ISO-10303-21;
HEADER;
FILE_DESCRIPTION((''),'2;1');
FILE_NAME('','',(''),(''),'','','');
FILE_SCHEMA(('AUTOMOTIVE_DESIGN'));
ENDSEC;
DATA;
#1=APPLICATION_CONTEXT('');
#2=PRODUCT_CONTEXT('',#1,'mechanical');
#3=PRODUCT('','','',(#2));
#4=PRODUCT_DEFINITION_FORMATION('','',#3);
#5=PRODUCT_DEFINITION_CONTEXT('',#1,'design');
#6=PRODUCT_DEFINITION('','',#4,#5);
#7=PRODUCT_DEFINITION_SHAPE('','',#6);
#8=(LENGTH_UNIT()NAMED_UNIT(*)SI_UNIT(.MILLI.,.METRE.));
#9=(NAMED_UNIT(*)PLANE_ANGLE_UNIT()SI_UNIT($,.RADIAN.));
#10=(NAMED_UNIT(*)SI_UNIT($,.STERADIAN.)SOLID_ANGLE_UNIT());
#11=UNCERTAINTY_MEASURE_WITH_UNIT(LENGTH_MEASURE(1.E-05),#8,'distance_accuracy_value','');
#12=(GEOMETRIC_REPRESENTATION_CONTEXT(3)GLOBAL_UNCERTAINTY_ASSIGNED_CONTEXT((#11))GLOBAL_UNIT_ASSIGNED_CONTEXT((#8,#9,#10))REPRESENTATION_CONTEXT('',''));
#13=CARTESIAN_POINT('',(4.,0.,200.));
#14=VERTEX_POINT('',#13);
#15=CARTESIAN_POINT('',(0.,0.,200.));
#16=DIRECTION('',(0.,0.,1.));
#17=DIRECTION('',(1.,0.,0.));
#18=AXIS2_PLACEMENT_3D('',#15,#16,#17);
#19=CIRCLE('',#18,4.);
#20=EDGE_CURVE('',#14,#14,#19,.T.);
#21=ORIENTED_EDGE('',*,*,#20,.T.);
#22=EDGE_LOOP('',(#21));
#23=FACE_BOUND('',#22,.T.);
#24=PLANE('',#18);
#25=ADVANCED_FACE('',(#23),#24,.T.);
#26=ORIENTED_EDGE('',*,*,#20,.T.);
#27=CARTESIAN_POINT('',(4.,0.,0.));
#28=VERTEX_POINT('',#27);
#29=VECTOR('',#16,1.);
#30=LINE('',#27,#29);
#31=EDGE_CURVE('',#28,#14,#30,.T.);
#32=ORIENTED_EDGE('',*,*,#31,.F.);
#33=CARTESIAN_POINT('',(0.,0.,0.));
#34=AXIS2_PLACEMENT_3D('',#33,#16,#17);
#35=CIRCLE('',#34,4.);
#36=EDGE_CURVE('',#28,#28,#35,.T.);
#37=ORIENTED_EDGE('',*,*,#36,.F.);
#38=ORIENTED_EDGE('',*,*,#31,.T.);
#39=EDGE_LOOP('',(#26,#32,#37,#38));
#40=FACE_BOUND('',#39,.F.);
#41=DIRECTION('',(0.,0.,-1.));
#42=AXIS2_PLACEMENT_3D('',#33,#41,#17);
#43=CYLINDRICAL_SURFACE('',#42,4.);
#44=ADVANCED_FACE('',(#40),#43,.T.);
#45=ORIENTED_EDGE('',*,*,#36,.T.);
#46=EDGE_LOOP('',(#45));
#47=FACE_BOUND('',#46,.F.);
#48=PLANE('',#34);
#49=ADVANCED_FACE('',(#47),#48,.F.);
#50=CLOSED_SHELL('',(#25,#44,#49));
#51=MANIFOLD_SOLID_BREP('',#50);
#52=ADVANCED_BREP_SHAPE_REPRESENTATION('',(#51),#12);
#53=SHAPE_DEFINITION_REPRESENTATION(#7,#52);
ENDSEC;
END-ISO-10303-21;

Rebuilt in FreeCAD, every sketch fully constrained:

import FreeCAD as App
import Part
import Sketcher
Q = App.Units.Quantity

doc = App.newDocument("Part")
body = doc.addObject("PartDesign::Body", "Body")

# Sketch on XY plane
sketch1 = body.newObject("Sketcher::SketchObject", "Sketch")
sketch1.AttachmentSupport = (doc.getObject("XY_Plane"), [""])
sketch1.MapMode = "FlatFace"
sketch1.addGeometry(Part.Circle(App.Vector(0, 0, 0), App.Vector(0, 0, 1), 4), False)
sketch1.addConstraint(Sketcher.Constraint("Coincident", 0, 3, -1, 1))
sketch1.addConstraint(Sketcher.Constraint("Diameter", 0, Q("8 mm")))
pad1 = body.newObject("PartDesign::Pad", "Pad")
pad1.Profile = sketch1
pad1.Length = 200

doc.recompute()
